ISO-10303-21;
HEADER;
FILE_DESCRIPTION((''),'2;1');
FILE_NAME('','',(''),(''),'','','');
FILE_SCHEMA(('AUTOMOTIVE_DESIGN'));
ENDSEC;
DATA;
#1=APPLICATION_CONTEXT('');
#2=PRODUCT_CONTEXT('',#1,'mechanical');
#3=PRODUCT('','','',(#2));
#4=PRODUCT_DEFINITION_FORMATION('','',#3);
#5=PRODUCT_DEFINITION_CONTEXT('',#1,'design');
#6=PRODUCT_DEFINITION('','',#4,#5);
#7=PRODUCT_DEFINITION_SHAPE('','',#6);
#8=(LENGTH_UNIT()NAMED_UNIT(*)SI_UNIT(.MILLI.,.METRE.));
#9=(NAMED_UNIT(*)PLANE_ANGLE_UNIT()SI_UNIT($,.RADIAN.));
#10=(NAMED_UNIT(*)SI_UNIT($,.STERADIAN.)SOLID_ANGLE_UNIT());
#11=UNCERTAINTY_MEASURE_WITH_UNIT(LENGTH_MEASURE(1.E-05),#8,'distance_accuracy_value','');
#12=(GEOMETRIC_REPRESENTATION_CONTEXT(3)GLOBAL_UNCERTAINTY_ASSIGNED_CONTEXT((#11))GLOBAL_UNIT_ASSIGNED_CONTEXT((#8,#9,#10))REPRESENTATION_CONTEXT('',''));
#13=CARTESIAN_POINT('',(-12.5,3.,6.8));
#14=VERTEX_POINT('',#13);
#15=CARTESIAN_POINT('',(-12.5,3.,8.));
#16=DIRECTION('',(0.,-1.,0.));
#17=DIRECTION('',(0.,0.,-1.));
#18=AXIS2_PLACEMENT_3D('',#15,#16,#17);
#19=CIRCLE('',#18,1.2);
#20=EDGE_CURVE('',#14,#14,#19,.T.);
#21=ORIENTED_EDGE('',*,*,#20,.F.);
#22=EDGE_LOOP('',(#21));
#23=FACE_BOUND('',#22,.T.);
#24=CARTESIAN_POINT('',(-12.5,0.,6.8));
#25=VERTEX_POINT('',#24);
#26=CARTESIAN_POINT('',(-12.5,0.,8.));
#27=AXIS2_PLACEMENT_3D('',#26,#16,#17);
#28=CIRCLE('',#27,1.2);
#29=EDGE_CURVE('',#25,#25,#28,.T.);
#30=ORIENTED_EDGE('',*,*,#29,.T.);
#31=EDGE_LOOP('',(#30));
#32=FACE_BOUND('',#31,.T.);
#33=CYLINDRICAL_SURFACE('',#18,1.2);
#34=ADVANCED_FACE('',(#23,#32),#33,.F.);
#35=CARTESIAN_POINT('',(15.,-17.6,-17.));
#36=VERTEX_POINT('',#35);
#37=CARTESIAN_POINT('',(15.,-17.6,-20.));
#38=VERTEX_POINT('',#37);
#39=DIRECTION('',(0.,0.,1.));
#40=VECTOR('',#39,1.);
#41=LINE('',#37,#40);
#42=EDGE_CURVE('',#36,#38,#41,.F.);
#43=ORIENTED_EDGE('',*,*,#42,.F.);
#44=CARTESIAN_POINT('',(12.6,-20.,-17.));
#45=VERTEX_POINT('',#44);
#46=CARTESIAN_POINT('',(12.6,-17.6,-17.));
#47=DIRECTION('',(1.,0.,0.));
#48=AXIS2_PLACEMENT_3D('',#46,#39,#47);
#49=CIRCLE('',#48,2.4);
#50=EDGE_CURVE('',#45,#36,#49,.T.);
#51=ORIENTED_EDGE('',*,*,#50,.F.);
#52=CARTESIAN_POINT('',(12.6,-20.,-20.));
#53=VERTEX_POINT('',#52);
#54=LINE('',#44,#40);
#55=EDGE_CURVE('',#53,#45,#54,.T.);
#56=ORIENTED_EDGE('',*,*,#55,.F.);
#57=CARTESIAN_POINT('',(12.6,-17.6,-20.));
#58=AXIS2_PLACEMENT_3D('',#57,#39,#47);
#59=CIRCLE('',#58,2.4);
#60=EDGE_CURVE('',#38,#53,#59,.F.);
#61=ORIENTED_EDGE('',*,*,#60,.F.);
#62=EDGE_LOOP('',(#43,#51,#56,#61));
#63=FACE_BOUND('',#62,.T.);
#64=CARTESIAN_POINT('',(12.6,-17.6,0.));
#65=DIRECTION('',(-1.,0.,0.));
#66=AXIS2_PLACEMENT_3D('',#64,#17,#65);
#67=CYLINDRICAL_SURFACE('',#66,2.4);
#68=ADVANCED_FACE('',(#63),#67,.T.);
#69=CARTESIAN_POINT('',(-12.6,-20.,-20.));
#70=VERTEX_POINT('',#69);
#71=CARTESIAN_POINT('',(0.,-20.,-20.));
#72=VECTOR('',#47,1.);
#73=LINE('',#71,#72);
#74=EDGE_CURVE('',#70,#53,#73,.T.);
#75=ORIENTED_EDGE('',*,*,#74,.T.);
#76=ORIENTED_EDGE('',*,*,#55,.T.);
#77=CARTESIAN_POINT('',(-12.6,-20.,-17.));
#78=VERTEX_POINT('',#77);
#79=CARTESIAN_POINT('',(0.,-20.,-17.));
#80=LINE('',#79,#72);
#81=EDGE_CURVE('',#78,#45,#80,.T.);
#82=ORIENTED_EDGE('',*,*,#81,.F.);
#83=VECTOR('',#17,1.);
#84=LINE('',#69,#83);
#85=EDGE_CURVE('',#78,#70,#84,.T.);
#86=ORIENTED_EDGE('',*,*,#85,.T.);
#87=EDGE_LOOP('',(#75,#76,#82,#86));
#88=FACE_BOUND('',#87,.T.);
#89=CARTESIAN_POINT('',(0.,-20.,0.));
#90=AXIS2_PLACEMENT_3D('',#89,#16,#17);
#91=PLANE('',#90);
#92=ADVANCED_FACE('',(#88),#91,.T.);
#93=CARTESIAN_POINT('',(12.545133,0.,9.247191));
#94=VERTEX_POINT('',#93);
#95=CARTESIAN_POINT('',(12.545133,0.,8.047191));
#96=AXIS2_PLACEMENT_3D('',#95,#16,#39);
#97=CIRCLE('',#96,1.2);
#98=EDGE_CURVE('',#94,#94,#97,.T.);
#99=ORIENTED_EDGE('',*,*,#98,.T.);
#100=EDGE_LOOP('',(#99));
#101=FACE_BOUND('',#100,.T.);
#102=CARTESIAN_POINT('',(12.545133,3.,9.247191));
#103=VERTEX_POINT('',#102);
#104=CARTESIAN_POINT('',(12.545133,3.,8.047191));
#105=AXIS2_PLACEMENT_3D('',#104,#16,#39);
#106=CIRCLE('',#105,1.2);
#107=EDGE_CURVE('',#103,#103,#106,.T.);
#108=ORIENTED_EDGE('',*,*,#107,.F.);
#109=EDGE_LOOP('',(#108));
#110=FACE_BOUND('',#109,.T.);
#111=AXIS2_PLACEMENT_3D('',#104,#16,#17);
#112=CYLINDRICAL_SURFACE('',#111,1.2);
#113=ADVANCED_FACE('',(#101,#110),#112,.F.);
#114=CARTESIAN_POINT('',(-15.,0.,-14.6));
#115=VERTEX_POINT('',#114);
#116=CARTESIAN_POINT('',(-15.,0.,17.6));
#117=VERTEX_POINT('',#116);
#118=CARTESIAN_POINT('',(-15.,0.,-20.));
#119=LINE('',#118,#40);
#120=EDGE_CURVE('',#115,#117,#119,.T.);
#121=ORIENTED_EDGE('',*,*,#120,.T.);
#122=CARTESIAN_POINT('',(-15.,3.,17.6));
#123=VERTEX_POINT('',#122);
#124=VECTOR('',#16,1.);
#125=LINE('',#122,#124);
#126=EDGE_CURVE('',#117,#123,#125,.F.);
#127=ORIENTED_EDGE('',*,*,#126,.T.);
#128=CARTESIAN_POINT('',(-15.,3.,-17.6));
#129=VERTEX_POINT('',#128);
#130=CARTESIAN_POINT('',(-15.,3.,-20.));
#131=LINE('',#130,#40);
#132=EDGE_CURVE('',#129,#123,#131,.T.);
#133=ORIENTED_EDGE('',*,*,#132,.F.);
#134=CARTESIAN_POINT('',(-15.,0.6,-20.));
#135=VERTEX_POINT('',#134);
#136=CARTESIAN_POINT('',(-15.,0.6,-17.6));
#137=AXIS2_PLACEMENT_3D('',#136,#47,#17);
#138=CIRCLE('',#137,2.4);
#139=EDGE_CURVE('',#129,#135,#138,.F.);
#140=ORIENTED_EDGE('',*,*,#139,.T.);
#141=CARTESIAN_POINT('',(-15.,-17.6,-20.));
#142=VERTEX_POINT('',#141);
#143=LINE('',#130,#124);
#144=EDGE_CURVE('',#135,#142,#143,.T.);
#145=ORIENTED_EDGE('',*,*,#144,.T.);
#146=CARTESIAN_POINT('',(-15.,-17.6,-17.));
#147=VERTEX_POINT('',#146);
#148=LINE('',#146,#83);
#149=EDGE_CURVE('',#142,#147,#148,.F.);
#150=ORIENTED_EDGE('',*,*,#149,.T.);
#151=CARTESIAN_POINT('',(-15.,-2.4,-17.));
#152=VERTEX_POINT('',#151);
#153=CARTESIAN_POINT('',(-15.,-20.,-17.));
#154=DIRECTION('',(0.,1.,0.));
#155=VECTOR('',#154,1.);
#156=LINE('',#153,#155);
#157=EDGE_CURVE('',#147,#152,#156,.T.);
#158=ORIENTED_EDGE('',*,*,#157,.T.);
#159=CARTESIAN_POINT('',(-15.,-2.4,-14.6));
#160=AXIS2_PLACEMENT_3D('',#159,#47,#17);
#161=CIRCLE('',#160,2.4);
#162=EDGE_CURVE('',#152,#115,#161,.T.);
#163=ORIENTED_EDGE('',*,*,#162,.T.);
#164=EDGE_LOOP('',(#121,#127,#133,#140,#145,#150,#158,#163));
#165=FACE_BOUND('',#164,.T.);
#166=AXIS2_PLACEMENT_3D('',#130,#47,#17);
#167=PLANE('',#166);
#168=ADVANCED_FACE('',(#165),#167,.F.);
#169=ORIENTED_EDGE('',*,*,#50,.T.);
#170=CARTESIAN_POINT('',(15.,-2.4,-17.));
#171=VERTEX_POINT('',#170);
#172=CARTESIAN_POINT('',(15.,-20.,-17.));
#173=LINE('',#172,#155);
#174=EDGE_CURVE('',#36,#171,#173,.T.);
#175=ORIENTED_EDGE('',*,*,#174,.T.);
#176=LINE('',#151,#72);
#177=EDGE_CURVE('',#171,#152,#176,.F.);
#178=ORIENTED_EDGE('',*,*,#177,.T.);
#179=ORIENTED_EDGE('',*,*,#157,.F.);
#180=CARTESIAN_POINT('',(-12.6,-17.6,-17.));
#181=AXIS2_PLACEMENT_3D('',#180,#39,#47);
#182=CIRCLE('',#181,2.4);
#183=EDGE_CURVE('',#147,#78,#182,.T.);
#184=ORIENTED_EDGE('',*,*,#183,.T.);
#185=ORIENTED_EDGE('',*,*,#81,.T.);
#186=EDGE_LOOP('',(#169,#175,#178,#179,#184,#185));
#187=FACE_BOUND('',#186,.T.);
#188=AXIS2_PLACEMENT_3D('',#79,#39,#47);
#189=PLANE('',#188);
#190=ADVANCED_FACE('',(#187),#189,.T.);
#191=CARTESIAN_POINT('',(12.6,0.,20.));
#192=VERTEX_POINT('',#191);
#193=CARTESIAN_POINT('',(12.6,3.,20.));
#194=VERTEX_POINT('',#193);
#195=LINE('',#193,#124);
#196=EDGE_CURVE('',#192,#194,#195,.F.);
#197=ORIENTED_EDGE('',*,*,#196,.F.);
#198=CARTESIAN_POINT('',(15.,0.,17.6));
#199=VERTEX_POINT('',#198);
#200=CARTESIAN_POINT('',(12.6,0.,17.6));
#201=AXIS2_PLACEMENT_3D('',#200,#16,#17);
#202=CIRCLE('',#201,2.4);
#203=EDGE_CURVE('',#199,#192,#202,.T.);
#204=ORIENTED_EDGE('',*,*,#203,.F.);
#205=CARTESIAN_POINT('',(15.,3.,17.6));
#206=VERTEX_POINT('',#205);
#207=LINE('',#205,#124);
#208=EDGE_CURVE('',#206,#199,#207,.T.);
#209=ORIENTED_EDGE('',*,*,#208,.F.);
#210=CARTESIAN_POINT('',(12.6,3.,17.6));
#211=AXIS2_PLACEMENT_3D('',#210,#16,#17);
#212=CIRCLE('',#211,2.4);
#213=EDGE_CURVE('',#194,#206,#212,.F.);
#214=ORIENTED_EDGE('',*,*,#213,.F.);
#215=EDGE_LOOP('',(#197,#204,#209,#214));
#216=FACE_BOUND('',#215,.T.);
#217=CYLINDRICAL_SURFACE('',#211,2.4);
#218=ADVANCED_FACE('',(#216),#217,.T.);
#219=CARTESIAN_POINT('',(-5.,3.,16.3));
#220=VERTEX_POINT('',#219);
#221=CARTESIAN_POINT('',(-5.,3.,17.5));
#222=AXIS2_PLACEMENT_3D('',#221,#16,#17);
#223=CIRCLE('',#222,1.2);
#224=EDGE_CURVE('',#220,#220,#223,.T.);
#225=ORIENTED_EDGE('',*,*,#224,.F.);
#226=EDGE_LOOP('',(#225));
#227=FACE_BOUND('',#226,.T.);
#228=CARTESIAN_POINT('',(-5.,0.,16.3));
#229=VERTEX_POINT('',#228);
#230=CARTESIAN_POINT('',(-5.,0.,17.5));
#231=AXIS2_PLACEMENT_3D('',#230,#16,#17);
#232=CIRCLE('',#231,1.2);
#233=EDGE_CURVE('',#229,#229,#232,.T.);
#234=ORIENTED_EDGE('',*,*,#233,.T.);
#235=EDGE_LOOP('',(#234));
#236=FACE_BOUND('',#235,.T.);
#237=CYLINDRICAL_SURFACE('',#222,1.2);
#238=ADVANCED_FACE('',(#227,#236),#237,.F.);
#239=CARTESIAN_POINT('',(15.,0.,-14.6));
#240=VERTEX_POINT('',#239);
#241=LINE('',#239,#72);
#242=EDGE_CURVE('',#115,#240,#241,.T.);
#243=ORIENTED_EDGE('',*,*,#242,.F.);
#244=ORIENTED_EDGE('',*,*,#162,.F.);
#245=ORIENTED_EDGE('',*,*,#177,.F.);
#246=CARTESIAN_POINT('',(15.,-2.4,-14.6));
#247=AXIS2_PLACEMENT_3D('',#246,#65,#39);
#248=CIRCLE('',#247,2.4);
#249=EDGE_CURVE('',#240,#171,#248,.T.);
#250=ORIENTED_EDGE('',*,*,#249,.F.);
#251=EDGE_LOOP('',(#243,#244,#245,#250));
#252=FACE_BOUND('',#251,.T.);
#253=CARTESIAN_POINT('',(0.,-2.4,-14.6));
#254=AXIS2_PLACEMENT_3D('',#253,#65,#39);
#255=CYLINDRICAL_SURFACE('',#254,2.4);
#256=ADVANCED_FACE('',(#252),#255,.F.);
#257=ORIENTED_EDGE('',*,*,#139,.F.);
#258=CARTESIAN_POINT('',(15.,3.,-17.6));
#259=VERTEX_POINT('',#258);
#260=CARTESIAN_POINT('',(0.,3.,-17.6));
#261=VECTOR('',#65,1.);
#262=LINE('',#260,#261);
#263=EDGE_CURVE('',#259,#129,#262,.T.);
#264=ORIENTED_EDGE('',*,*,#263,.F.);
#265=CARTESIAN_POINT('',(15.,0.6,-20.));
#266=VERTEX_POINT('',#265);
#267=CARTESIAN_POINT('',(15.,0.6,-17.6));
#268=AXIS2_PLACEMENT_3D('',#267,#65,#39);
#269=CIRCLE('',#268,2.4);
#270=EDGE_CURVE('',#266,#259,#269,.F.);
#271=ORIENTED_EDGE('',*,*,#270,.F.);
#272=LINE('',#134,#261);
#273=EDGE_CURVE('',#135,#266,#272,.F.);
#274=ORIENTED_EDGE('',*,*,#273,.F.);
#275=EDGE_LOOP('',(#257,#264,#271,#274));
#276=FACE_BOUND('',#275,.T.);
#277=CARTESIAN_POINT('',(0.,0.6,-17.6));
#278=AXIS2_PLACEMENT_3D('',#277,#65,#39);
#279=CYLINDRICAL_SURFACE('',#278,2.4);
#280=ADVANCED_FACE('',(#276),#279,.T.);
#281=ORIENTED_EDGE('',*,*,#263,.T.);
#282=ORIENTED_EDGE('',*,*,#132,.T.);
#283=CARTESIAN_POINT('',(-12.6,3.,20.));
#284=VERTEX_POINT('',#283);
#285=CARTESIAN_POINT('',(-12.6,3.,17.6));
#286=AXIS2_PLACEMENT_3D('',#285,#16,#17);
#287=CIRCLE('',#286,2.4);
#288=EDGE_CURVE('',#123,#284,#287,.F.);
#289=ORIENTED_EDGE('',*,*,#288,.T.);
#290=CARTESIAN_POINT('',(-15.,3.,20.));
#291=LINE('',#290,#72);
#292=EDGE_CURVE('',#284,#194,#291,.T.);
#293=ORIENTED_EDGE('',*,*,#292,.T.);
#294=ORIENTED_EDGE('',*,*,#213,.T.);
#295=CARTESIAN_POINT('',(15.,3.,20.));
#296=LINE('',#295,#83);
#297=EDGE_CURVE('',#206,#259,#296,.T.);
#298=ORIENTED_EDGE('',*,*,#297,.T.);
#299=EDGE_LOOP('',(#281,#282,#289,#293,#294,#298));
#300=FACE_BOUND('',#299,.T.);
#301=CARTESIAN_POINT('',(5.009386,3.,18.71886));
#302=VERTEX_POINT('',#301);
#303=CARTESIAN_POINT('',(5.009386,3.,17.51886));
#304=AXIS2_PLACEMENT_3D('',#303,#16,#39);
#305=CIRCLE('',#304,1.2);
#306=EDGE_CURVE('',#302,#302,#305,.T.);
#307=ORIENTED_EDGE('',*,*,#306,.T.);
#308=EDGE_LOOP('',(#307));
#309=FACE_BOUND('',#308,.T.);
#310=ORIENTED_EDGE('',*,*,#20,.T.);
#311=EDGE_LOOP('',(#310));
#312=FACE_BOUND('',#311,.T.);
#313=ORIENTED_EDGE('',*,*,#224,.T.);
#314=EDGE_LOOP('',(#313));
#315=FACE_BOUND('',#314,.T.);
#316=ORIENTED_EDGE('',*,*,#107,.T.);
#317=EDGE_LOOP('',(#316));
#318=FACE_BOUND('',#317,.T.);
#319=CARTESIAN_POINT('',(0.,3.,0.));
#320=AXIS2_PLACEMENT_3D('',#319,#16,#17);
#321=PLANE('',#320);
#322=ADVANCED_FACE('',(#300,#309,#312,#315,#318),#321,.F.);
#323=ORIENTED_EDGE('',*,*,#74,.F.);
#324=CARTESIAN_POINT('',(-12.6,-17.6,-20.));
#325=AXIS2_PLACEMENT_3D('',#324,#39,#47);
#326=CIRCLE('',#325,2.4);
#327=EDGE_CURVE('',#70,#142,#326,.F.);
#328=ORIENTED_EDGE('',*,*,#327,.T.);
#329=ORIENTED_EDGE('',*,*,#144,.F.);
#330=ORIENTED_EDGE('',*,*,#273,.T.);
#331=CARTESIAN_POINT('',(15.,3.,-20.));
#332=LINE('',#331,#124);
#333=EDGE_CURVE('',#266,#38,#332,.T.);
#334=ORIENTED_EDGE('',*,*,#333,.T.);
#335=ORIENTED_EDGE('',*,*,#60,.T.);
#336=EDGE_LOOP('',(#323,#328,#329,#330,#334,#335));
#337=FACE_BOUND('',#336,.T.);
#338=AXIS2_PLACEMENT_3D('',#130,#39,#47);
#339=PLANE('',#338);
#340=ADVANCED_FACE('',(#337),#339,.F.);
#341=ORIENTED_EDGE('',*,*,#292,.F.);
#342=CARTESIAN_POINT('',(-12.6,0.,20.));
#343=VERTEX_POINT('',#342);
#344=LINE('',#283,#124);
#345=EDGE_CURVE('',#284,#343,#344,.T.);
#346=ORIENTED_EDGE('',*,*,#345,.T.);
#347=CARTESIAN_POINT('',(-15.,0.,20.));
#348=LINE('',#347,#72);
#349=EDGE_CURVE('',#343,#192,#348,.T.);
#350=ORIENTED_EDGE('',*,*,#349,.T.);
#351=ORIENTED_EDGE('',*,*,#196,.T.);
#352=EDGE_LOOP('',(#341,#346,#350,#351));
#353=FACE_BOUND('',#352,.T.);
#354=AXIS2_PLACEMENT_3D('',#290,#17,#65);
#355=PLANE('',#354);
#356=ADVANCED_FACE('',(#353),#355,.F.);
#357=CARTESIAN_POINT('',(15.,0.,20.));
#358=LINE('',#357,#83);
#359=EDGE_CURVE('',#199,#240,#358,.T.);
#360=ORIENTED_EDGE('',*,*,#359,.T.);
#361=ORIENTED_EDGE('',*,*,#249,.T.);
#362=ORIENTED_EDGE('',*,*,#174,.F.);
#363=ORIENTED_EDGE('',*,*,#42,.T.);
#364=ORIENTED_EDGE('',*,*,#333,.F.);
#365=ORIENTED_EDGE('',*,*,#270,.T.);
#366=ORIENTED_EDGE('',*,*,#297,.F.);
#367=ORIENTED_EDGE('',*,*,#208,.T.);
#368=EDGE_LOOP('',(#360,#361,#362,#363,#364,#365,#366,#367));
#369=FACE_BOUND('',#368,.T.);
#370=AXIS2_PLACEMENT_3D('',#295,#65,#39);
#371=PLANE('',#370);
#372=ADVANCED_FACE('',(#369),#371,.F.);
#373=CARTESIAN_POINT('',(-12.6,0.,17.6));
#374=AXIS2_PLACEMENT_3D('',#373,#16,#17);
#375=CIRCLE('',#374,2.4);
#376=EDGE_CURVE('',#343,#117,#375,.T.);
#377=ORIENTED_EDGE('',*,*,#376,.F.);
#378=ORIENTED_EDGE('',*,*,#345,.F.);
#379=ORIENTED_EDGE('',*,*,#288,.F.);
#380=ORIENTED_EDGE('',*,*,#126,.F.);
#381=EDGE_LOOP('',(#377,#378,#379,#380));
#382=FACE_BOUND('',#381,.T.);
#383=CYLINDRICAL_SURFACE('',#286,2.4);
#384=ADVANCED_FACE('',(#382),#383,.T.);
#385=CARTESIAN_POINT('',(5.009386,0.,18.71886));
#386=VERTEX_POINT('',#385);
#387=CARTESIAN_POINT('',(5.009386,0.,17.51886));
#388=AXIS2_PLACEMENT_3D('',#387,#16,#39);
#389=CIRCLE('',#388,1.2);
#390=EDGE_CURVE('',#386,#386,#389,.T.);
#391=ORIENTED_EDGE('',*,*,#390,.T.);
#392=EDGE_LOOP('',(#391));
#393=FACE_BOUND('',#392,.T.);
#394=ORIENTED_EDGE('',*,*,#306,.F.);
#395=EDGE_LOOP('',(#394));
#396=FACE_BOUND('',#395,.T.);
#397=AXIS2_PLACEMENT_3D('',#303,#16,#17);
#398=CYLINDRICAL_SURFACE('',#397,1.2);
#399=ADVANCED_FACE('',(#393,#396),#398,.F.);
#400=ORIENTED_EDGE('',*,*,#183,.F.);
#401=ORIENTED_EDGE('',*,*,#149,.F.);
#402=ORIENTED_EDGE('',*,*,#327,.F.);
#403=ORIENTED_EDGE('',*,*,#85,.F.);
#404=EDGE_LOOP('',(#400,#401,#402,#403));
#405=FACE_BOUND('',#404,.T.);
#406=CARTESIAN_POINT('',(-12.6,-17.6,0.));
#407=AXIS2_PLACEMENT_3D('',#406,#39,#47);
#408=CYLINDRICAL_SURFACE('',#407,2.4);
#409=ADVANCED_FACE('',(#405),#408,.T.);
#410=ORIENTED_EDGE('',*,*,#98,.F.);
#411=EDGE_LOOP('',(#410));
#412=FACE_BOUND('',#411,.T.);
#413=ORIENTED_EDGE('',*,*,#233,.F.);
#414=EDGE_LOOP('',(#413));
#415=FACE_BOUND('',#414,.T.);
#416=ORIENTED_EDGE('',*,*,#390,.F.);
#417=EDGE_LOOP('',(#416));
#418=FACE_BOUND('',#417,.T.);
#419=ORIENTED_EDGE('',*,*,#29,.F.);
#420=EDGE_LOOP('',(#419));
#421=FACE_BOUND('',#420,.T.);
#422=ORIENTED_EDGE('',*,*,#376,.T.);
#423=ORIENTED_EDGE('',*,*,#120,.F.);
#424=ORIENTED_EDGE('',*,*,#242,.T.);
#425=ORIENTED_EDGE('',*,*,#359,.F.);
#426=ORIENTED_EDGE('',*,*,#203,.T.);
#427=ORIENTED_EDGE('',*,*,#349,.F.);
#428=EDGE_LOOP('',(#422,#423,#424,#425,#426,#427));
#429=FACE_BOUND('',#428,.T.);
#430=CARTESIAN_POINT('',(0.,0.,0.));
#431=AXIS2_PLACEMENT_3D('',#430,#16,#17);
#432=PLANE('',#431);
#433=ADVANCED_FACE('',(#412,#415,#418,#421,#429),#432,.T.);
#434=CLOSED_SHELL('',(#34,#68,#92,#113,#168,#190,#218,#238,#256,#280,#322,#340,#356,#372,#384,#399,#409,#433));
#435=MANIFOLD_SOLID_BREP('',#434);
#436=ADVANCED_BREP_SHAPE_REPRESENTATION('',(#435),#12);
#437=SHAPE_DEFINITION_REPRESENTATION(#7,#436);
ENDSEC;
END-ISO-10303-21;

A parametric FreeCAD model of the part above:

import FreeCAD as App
import Part
import Sketcher

V = App.Vector
Q = App.Units.Quantity


def edges_at(feature, points):
    """Names of the edges that pass closest to the given points."""
    edges = feature.Shape.Edges
    near = lambda p: min(range(len(edges)), key=lambda i: edges[i].distToShape(Part.Vertex(*p))[0])
    return sorted({f"Edge{near(p) + 1}" for p in points})


def add_polygon(sketch, points):
    """Adds a closed chain of lines whose ends are joined by coincident constraints."""
    first, n = sketch.GeometryCount, len(points)
    for a, b in zip(points, points[1:] + points[:1]):
        sketch.addGeometry(Part.LineSegment(App.Vector(*a, 0), App.Vector(*b, 0)), False)
    for i in range(n):
        sketch.addConstraint(Sketcher.Constraint("Coincident", first + i, 2, first + (i + 1) % n, 1))

doc = App.newDocument("Part")
body = doc.addObject("PartDesign::Body", "Body")

# Sketch on XZ plane
sketch1 = body.newObject("Sketcher::SketchObject", "Sketch")
sketch1.AttachmentSupport = (doc.getObject("XZ_Plane"), [""])
sketch1.MapMode = "FlatFace"
add_polygon(sketch1, [(-15, -20), (-15, 20), (15, 20), (15, -20)])  # lines 0-3
sketch1.addConstraint(Sketcher.Constraint("Vertical", 0))
sketch1.addConstraint(Sketcher.Constraint("Horizontal", 1))
sketch1.addConstraint(Sketcher.Constraint("Vertical", 2))
sketch1.addConstraint(Sketcher.Constraint("Horizontal", 3))
sketch1.addConstraint(Sketcher.Constraint("Symmetric", 0, 2, 2, 2, -1, 1))
sketch1.addConstraint(Sketcher.Constraint("DistanceX", 1, 1, 1, 2, Q("30 mm")))
sketch1.addConstraint(Sketcher.Constraint("DistanceY", 0, 1, 0, 2, Q("40 mm")))
pad1 = body.newObject("PartDesign::Pad", "Pad")
pad1.Profile = sketch1
pad1.Length = 3
pad1.Reversed = True

# Sketch on XZ plane
sketch2 = body.newObject("Sketcher::SketchObject", "Sketch001")
sketch2.AttachmentSupport = (doc.getObject("XZ_Plane"), [""])
sketch2.MapMode = "FlatFace"
sketch2.addGeometry(Part.Circle(V(-5, 17.5, 0), V(0, 0, 1), 1.2), False)
sketch2.addGeometry(Part.Circle(V(-12.5, 8, 0), V(0, 0, 1), 1.2), False)
sketch2.addGeometry(Part.Circle(V(12.5, 8, 0), V(0, 0, 1), 1.2), False)
sketch2.addGeometry(Part.Circle(V(5, 17.5, 0), V(0, 0, 1), 1.2), False)
sketch2.addConstraint(Sketcher.Constraint("Equal", 0, 1))
sketch2.addConstraint(Sketcher.Constraint("Equal", 1, 2))
sketch2.addConstraint(Sketcher.Constraint("Equal", 2, 3))
sketch2.addConstraint(Sketcher.Constraint("Diameter", 0, Q("2.4 mm")))
sketch2.addConstraint(Sketcher.Constraint("DistanceX", 0, 3, -1, 1, Q("5 mm")))
sketch2.addConstraint(Sketcher.Constraint("DistanceY", -1, 1, 1, 3, Q("8 mm")))
sketch2.addConstraint(Sketcher.Constraint("DistanceY", -1, 1, 0, 3, Q("17.5 mm")))
sketch2.addConstraint(Sketcher.Constraint("DistanceX", 1, 3, -1, 1, Q("12.5 mm")))
sketch2.addConstraint(Sketcher.Constraint("DistanceY", -1, 1, 2, 3, Q("8.047191 mm")))
sketch2.addConstraint(Sketcher.Constraint("DistanceY", -1, 1, 3, 3, Q("17.51886 mm")))
sketch2.addConstraint(Sketcher.Constraint("DistanceX", -1, 1, 2, 3, Q("12.545133 mm")))
sketch2.addConstraint(Sketcher.Constraint("DistanceX", -1, 1, 3, 3, Q("5.009386 mm")))
pocket1 = body.newObject("PartDesign::Pocket", "Pocket")
pocket1.Profile = sketch2
pocket1.Type = "ThroughAll"

# Sketch on XZ plane
sketch3 = body.newObject("Sketcher::SketchObject", "Sketch002")
sketch3.AttachmentSupport = (doc.getObject("XZ_Plane"), [""])
sketch3.MapMode = "FlatFace"
add_polygon(sketch3, [(-15, -17), (-15, -20), (15, -20), (15, -17)])  # lines 0-3
sketch3.addConstraint(Sketcher.Constraint("Vertical", 0))
sketch3.addConstraint(Sketcher.Constraint("Horizontal", 1))
sketch3.addConstraint(Sketcher.Constraint("Vertical", 2))
sketch3.addConstraint(Sketcher.Constraint("Horizontal", 3))
sketch3.addConstraint(Sketcher.Constraint("DistanceX", 1, 1, 1, 2, Q("30 mm")))
sketch3.addConstraint(Sketcher.Constraint("DistanceY", 0, 2, 0, 1, Q("3 mm")))
sketch3.addConstraint(Sketcher.Constraint("DistanceX", 0, 2, -1, 1, Q("15 mm")))
sketch3.addConstraint(Sketcher.Constraint("DistanceY", 0, 2, -1, 1, Q("20 mm")))
pad2 = body.newObject("PartDesign::Pad", "Pad001")
pad2.Profile = sketch3
pad2.Length = 20
doc.recompute()

fillet = body.newObject("PartDesign::Fillet", "Fillet")
fillet.Base = (pad2, edges_at(pad2, [(0, 0, -17)]))
fillet.Radius = 2.4
doc.recompute()

fillet2 = body.newObject("PartDesign::Fillet", "Fillet001")
fillet2.Base = (fillet, edges_at(fillet, [(0, 3, -20)]))
fillet2.Radius = 2.4
doc.recompute()

fillet3 = body.newObject("PartDesign::Fillet", "Fillet002")
fillet3.Base = (fillet2, edges_at(fillet2, [(15, 1.5, 20), (-15, 1.5, 20)]))
fillet3.Radius = 2.4
doc.recompute()

fillet4 = body.newObject("PartDesign::Fillet", "Fillet003")
fillet4.Base = (fillet3, edges_at(fillet3, [(-15, -20, -18.5), (15, -20, -18.5)]))
fillet4.Radius = 2.4

doc.recompute()
